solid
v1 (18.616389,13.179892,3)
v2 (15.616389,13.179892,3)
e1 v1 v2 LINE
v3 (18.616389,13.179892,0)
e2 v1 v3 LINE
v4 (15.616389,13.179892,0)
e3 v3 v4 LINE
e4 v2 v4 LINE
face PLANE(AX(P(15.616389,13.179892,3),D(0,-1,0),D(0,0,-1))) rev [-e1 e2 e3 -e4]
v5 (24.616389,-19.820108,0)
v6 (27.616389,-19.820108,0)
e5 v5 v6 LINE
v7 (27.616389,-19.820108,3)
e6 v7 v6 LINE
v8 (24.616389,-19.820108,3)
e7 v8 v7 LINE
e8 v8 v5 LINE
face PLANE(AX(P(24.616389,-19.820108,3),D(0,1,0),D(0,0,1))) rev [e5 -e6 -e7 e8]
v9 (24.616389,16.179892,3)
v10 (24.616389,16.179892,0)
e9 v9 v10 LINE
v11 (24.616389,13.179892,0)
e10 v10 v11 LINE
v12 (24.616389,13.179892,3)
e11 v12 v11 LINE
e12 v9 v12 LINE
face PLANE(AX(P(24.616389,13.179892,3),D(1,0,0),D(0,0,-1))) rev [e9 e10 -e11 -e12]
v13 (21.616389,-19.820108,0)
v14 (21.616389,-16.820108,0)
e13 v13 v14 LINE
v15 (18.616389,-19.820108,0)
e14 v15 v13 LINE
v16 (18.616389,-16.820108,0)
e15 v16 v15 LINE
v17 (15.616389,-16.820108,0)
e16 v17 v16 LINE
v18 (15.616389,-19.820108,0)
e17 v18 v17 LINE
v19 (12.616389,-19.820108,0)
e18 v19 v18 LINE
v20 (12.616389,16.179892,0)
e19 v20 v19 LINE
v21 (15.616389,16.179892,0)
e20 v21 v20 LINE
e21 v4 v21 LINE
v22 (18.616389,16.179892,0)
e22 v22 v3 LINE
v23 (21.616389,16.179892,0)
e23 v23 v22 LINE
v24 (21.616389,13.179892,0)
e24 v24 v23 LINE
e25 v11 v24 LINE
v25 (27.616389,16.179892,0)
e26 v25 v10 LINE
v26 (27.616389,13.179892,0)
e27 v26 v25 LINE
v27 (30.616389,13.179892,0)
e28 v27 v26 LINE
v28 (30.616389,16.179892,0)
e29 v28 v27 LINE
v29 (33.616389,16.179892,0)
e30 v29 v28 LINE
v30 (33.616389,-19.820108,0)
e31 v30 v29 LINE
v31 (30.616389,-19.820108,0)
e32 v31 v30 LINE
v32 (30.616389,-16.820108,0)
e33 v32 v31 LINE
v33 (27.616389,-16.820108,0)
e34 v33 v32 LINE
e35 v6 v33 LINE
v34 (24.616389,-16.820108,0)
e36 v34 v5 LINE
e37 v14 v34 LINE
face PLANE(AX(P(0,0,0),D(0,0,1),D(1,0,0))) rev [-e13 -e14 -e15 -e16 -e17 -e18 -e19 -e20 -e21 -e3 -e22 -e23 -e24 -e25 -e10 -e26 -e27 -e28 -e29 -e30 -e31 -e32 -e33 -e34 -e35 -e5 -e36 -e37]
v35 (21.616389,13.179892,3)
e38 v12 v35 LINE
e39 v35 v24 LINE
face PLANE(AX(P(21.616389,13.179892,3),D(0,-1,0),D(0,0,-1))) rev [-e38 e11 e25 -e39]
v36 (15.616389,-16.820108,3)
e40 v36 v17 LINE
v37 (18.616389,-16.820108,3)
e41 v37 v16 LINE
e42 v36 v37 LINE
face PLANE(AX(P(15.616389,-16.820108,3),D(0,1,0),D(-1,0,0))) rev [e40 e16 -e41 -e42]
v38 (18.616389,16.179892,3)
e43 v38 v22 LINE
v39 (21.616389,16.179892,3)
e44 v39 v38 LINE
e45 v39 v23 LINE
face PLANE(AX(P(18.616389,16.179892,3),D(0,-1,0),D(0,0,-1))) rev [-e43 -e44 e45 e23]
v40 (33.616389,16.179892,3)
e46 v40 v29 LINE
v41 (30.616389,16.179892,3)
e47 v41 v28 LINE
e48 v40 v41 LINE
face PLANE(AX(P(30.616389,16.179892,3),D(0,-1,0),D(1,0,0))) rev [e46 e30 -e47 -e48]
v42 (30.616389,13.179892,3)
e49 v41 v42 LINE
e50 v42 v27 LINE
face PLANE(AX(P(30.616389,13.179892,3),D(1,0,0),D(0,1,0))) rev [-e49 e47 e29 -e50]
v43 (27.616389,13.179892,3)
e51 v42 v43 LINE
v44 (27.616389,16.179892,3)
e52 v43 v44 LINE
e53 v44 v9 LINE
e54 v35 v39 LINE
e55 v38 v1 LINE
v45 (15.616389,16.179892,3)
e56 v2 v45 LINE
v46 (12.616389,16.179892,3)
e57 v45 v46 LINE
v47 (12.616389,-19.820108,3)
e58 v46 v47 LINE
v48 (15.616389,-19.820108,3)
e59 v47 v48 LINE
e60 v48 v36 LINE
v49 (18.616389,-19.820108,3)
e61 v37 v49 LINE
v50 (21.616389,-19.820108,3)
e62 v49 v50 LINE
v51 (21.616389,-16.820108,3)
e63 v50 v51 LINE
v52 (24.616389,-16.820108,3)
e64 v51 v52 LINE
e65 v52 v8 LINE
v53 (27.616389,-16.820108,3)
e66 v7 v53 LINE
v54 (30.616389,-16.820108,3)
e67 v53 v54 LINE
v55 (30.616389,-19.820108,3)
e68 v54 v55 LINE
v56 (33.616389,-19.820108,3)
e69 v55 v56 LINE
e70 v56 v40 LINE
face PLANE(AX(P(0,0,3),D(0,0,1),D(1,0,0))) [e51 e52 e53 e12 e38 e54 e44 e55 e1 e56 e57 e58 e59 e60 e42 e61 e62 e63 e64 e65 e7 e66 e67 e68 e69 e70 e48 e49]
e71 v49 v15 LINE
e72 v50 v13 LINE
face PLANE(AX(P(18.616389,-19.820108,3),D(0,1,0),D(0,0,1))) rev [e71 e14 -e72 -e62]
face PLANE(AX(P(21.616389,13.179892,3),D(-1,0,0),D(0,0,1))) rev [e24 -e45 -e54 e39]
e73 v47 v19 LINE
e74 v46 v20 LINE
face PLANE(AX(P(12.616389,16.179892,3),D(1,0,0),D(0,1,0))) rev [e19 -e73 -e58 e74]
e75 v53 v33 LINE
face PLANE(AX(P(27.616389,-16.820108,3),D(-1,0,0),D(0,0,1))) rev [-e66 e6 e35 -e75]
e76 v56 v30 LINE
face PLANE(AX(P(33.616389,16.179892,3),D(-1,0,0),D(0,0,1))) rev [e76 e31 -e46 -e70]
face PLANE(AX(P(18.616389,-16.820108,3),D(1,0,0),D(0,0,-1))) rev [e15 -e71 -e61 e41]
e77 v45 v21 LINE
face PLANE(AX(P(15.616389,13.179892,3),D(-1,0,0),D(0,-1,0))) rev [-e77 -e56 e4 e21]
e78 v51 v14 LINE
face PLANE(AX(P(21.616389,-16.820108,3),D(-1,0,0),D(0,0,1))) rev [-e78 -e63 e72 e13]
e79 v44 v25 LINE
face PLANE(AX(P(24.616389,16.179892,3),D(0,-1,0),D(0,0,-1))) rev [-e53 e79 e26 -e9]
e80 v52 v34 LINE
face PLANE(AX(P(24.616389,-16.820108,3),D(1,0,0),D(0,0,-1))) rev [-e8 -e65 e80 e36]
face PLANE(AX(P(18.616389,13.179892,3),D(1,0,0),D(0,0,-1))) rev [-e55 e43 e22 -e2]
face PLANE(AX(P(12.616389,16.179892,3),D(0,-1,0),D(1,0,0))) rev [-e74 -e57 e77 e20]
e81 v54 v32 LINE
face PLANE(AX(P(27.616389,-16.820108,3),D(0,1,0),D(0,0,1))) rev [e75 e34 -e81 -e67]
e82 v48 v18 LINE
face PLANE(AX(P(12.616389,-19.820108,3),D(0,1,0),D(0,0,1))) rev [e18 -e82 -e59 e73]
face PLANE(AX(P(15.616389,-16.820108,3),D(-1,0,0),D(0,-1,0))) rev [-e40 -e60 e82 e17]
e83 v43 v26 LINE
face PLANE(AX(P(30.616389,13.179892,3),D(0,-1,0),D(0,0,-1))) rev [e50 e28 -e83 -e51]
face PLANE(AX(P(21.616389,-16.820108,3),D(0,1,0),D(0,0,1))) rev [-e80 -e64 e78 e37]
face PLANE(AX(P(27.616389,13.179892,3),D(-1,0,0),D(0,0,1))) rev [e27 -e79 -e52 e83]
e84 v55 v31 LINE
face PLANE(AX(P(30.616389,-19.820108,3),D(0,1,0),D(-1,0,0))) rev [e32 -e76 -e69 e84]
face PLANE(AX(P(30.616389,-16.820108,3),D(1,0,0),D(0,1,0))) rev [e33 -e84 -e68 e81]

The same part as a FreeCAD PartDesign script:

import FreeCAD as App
import Part
import Sketcher
from FreeCAD import Vector

doc = App.newDocument("Part")
body = doc.addObject("PartDesign::Body", "Body")

sketch1 = body.newObject("Sketcher::SketchObject", "Sketch")
sketch1.AttachmentSupport = (doc.getObject("XY_Plane"), [""])
sketch1.MapMode = "FlatFace"
sketch1.addGeometry([
    Part.LineSegment(Vector(15.6, 16.2, 0), Vector(12.6, 16.2, 0)),
    Part.LineSegment(Vector(12.6, 16.2, 0), Vector(12.6, -19.8, 0)),
    Part.LineSegment(Vector(12.6, -19.8, 0), Vector(15.6, -19.8, 0)),
    Part.LineSegment(Vector(15.6, -19.8, 0), Vector(15.6, -16.8, 0)),
    Part.LineSegment(Vector(15.6, -16.8, 0), Vector(18.6, -16.8, 0)),
    Part.LineSegment(Vector(18.6, -16.8, 0), Vector(18.6, -19.8, 0)),
    Part.LineSegment(Vector(18.6, -19.8, 0), Vector(21.6, -19.8, 0)),
    Part.LineSegment(Vector(21.6, -19.8, 0), Vector(21.6, -16.8, 0)),
    Part.LineSegment(Vector(21.6, -16.8, 0), Vector(24.6, -16.8, 0)),
    Part.LineSegment(Vector(24.6, -16.8, 0), Vector(24.6, -19.8, 0)),
    Part.LineSegment(Vector(24.6, -19.8, 0), Vector(27.6, -19.8, 0)),
    Part.LineSegment(Vector(27.6, -19.8, 0), Vector(27.6, -16.8, 0)),
    Part.LineSegment(Vector(27.6, -16.8, 0), Vector(30.6, -16.8, 0)),
    Part.LineSegment(Vector(30.6, -16.8, 0), Vector(30.6, -19.8, 0)),
    Part.LineSegment(Vector(30.6, -19.8, 0), Vector(33.6, -19.8, 0)),
    Part.LineSegment(Vector(33.6, -19.8, 0), Vector(33.6, 16.2, 0)),
    Part.LineSegment(Vector(33.6, 16.2, 0), Vector(30.6, 16.2, 0)),
    Part.LineSegment(Vector(30.6, 16.2, 0), Vector(30.6, 13.2, 0)),
    Part.LineSegment(Vector(30.6, 13.2, 0), Vector(27.6, 13.2, 0)),
    Part.LineSegment(Vector(27.6, 13.2, 0), Vector(27.6, 16.2, 0)),
    Part.LineSegment(Vector(27.6, 16.2, 0), Vector(24.6, 16.2, 0)),
    Part.LineSegment(Vector(24.6, 16.2, 0), Vector(24.6, 13.2, 0)),
    Part.LineSegment(Vector(24.6, 13.2, 0), Vector(21.6, 13.2, 0)),
    Part.LineSegment(Vector(21.6, 13.2, 0), Vector(21.6, 16.2, 0)),
    Part.LineSegment(Vector(21.6, 16.2, 0), Vector(18.6, 16.2, 0)),
    Part.LineSegment(Vector(18.6, 16.2, 0), Vector(18.6, 13.2, 0)),
    Part.LineSegment(Vector(18.6, 13.2, 0), Vector(15.6, 13.2, 0)),
    Part.LineSegment(Vector(15.6, 13.2, 0), Vector(15.6, 16.2, 0)),
], False)
sketch1.addConstraint([
    Sketcher.Constraint("Coincident", 0, 2, 1, 1),
    Sketcher.Constraint("Coincident", 1, 2, 2, 1),
    Sketcher.Constraint("Coincident", 2, 2, 3, 1),
    Sketcher.Constraint("Coincident", 3, 2, 4, 1),
    Sketcher.Constraint("Coincident", 4, 2, 5, 1),
    Sketcher.Constraint("Coincident", 5, 2, 6, 1),
    Sketcher.Constraint("Coincident", 6, 2, 7, 1),
    Sketcher.Constraint("Coincident", 7, 2, 8, 1),
    Sketcher.Constraint("Coincident", 8, 2, 9, 1),
    Sketcher.Constraint("Coincident", 9, 2, 10, 1),
    Sketcher.Constraint("Coincident", 10, 2, 11, 1),
    Sketcher.Constraint("Coincident", 11, 2, 12, 1),
    Sketcher.Constraint("Coincident", 12, 2, 13, 1),
    Sketcher.Constraint("Coincident", 13, 2, 14, 1),
    Sketcher.Constraint("Coincident", 14, 2, 15, 1),
    Sketcher.Constraint("Coincident", 15, 2, 16, 1),
    Sketcher.Constraint("Coincident", 16, 2, 17, 1),
    Sketcher.Constraint("Coincident", 17, 2, 18, 1),
    Sketcher.Constraint("Coincident", 18, 2, 19, 1),
    Sketcher.Constraint("Coincident", 19, 2, 20, 1),
    Sketcher.Constraint("Coincident", 20, 2, 21, 1),
    Sketcher.Constraint("Coincident", 21, 2, 22, 1),
    Sketcher.Constraint("Coincident", 22, 2, 23, 1),
    Sketcher.Constraint("Coincident", 23, 2, 24, 1),
    Sketcher.Constraint("Coincident", 24, 2, 25, 1),
    Sketcher.Constraint("Coincident", 25, 2, 26, 1),
    Sketcher.Constraint("Coincident", 26, 2, 27, 1),
    Sketcher.Constraint("Coincident", 27, 2, 0, 1),
    Sketcher.Constraint("Horizontal", 0),
    Sketcher.Constraint("Vertical", 1),
    Sketcher.Constraint("Horizontal", 2),
    Sketcher.Constraint("Vertical", 3),
    Sketcher.Constraint("Horizontal", 4),
    Sketcher.Constraint("Vertical", 5),
    Sketcher.Constraint("Horizontal", 6),
    Sketcher.Constraint("Vertical", 7),
    Sketcher.Constraint("Horizontal", 8),
    Sketcher.Constraint("Vertical", 9),
    Sketcher.Constraint("Horizontal", 10),
    Sketcher.Constraint("Vertical", 11),
    Sketcher.Constraint("Horizontal", 12),
    Sketcher.Constraint("Vertical", 13),
    Sketcher.Constraint("Horizontal", 14),
    Sketcher.Constraint("Vertical", 15),
    Sketcher.Constraint("Horizontal", 16),
    Sketcher.Constraint("Vertical", 17),
    Sketcher.Constraint("Horizontal", 18),
    Sketcher.Constraint("Vertical", 19),
    Sketcher.Constraint("Horizontal", 20),
    Sketcher.Constraint("Vertical", 21),
    Sketcher.Constraint("Horizontal", 22),
    Sketcher.Constraint("Vertical", 23),
    Sketcher.Constraint("Horizontal", 24),
    Sketcher.Constraint("Vertical", 25),
    Sketcher.Constraint("Horizontal", 26),
    Sketcher.Constraint("Vertical", 27),
    Sketcher.Constraint("Horizontal", 2, 2, 5, 2),
    Sketcher.Constraint("Horizontal", 4, 2, 7, 2),
    Sketcher.Constraint("Horizontal", 6, 2, 9, 2),
    Sketcher.Constraint("Horizontal", 8, 2, 11, 2),
    Sketcher.Constraint("Horizontal", 10, 2, 13, 2),
    Sketcher.Constraint("Horizontal", 0, 2, 15, 2),
    Sketcher.Constraint("Horizontal", 16, 2, 19, 2),
    Sketcher.Constraint("Horizontal", 18, 2, 21, 2),
    Sketcher.Constraint("Horizontal", 20, 2, 23, 2),
    Sketcher.Constraint("Horizontal", 22, 2, 25, 2),
    Sketcher.Constraint("Vertical", 13, 2, 16, 2),
    Sketcher.Constraint("Vertical", 11, 2, 18, 2),
    Sketcher.Constraint("Vertical", 9, 2, 20, 2),
    Sketcher.Constraint("Vertical", 7, 2, 22, 2),
    Sketcher.Constraint("Vertical", 5, 2, 24, 2),
    Sketcher.Constraint("Vertical", 3, 2, 26, 2),
    Sketcher.Constraint("Equal", 2, 4),
    Sketcher.Constraint("Equal", 4, 6),
    Sketcher.Constraint("Equal", 6, 8),
    Sketcher.Constraint("Equal", 8, 10),
    Sketcher.Constraint("Equal", 10, 12),
    Sketcher.Constraint("Equal", 12, 14),
    Sketcher.Constraint("Equal", 26, 3),
    Sketcher.Constraint("Equal", 13, 17),
    Sketcher.Constraint("DistanceX", 0, 2, 0, 1, 3.0),
    Sketcher.Constraint("DistanceY", 1, 2, 1, 1, 36.0),
    Sketcher.Constraint("DistanceX", -1, 1, 0, 2, 12.616389),
    Sketcher.Constraint("DistanceY", -1, 1, 0, 2, 16.179892),
])
pad1 = body.newObject("PartDesign::Pad", "Pad")
pad1.Profile = sketch1
pad1.Length = 3

doc.recompute()
